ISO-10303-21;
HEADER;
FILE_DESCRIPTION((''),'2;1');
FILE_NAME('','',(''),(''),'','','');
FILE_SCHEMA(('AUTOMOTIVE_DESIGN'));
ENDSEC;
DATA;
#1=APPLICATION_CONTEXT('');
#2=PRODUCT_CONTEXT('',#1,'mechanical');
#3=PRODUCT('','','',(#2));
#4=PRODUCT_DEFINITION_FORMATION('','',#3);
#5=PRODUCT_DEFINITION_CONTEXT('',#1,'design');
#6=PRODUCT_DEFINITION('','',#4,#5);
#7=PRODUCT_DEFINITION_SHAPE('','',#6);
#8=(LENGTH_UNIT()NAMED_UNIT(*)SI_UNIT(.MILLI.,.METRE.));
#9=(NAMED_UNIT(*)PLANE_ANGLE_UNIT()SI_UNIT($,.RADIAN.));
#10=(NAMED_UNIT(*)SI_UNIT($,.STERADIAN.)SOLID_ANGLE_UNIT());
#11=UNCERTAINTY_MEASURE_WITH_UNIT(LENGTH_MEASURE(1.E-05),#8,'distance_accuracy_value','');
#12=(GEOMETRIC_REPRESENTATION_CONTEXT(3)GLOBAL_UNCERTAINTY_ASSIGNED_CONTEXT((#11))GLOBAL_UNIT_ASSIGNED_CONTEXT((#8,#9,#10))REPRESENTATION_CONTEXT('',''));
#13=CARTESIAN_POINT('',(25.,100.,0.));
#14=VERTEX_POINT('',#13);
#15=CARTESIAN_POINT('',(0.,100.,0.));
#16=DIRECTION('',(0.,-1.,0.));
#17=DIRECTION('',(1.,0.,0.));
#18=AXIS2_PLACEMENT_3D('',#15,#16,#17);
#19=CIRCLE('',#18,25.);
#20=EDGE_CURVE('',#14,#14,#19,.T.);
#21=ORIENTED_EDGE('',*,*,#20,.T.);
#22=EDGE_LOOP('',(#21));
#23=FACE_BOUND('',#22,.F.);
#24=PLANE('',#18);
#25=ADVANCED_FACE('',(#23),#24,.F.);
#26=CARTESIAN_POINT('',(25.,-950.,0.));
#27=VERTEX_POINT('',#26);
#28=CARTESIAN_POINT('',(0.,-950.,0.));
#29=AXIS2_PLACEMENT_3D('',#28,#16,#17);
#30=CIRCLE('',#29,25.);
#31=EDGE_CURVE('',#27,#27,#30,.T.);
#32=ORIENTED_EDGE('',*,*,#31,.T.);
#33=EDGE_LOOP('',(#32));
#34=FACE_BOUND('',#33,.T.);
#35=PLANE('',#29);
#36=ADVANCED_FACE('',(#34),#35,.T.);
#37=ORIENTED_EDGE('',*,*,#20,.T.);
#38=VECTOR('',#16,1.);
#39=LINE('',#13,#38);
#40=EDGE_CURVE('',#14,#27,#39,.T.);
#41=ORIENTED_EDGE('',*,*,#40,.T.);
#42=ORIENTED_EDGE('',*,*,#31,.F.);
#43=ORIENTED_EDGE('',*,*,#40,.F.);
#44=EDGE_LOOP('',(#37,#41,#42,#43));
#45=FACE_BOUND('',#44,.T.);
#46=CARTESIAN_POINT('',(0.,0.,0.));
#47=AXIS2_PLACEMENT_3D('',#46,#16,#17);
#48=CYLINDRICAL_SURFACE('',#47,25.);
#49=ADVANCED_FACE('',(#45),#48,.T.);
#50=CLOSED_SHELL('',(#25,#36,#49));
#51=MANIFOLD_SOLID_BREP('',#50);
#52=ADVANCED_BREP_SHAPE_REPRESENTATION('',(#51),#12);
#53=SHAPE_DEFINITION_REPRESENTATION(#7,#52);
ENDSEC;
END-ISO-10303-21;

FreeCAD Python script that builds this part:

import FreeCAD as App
import Part
import Sketcher

doc = App.newDocument("Part")
body = doc.addObject("PartDesign::Body", "Body")

# Sketch on XZ plane
sketch1 = doc.addObject("Sketcher::SketchObject", "Sketch")
body.addObject(sketch1)
sketch1.AttachmentSupport = (doc.XZ_Plane, [""])
sketch1.MapMode = "FlatFace"
sketch1.addGeometry(Part.Circle(App.Vector(0, 0, 0), App.Vector(0, 0, 1), 25), False)
sketch1.addConstraint([
    Sketcher.Constraint("Coincident", 0, 3, -1, 1),
    Sketcher.Constraint("Diameter", 0, 50.0),
])
pad1 = doc.addObject("PartDesign::Pad", "Pad")
body.addObject(pad1)
pad1.Profile = sketch1
pad1.Length = 950

# Sketch on XZ plane
sketch2 = doc.addObject("Sketcher::SketchObject", "Sketch001")
body.addObject(sketch2)
sketch2.AttachmentSupport = (doc.XZ_Plane, [""])
sketch2.MapMode = "FlatFace"
sketch2.addGeometry(Part.Circle(App.Vector(0, 0, 0), App.Vector(0, 0, 1), 25), False)
sketch2.addConstraint([
    Sketcher.Constraint("Coincident", 0, 3, -1, 1),
    Sketcher.Constraint("Diameter", 0, 50.0),
])
pad2 = doc.addObject("PartDesign::Pad", "Pad001")
body.addObject(pad2)
pad2.Profile = sketch2
pad2.Length = 100
pad2.Reversed = True

doc.recompute()
